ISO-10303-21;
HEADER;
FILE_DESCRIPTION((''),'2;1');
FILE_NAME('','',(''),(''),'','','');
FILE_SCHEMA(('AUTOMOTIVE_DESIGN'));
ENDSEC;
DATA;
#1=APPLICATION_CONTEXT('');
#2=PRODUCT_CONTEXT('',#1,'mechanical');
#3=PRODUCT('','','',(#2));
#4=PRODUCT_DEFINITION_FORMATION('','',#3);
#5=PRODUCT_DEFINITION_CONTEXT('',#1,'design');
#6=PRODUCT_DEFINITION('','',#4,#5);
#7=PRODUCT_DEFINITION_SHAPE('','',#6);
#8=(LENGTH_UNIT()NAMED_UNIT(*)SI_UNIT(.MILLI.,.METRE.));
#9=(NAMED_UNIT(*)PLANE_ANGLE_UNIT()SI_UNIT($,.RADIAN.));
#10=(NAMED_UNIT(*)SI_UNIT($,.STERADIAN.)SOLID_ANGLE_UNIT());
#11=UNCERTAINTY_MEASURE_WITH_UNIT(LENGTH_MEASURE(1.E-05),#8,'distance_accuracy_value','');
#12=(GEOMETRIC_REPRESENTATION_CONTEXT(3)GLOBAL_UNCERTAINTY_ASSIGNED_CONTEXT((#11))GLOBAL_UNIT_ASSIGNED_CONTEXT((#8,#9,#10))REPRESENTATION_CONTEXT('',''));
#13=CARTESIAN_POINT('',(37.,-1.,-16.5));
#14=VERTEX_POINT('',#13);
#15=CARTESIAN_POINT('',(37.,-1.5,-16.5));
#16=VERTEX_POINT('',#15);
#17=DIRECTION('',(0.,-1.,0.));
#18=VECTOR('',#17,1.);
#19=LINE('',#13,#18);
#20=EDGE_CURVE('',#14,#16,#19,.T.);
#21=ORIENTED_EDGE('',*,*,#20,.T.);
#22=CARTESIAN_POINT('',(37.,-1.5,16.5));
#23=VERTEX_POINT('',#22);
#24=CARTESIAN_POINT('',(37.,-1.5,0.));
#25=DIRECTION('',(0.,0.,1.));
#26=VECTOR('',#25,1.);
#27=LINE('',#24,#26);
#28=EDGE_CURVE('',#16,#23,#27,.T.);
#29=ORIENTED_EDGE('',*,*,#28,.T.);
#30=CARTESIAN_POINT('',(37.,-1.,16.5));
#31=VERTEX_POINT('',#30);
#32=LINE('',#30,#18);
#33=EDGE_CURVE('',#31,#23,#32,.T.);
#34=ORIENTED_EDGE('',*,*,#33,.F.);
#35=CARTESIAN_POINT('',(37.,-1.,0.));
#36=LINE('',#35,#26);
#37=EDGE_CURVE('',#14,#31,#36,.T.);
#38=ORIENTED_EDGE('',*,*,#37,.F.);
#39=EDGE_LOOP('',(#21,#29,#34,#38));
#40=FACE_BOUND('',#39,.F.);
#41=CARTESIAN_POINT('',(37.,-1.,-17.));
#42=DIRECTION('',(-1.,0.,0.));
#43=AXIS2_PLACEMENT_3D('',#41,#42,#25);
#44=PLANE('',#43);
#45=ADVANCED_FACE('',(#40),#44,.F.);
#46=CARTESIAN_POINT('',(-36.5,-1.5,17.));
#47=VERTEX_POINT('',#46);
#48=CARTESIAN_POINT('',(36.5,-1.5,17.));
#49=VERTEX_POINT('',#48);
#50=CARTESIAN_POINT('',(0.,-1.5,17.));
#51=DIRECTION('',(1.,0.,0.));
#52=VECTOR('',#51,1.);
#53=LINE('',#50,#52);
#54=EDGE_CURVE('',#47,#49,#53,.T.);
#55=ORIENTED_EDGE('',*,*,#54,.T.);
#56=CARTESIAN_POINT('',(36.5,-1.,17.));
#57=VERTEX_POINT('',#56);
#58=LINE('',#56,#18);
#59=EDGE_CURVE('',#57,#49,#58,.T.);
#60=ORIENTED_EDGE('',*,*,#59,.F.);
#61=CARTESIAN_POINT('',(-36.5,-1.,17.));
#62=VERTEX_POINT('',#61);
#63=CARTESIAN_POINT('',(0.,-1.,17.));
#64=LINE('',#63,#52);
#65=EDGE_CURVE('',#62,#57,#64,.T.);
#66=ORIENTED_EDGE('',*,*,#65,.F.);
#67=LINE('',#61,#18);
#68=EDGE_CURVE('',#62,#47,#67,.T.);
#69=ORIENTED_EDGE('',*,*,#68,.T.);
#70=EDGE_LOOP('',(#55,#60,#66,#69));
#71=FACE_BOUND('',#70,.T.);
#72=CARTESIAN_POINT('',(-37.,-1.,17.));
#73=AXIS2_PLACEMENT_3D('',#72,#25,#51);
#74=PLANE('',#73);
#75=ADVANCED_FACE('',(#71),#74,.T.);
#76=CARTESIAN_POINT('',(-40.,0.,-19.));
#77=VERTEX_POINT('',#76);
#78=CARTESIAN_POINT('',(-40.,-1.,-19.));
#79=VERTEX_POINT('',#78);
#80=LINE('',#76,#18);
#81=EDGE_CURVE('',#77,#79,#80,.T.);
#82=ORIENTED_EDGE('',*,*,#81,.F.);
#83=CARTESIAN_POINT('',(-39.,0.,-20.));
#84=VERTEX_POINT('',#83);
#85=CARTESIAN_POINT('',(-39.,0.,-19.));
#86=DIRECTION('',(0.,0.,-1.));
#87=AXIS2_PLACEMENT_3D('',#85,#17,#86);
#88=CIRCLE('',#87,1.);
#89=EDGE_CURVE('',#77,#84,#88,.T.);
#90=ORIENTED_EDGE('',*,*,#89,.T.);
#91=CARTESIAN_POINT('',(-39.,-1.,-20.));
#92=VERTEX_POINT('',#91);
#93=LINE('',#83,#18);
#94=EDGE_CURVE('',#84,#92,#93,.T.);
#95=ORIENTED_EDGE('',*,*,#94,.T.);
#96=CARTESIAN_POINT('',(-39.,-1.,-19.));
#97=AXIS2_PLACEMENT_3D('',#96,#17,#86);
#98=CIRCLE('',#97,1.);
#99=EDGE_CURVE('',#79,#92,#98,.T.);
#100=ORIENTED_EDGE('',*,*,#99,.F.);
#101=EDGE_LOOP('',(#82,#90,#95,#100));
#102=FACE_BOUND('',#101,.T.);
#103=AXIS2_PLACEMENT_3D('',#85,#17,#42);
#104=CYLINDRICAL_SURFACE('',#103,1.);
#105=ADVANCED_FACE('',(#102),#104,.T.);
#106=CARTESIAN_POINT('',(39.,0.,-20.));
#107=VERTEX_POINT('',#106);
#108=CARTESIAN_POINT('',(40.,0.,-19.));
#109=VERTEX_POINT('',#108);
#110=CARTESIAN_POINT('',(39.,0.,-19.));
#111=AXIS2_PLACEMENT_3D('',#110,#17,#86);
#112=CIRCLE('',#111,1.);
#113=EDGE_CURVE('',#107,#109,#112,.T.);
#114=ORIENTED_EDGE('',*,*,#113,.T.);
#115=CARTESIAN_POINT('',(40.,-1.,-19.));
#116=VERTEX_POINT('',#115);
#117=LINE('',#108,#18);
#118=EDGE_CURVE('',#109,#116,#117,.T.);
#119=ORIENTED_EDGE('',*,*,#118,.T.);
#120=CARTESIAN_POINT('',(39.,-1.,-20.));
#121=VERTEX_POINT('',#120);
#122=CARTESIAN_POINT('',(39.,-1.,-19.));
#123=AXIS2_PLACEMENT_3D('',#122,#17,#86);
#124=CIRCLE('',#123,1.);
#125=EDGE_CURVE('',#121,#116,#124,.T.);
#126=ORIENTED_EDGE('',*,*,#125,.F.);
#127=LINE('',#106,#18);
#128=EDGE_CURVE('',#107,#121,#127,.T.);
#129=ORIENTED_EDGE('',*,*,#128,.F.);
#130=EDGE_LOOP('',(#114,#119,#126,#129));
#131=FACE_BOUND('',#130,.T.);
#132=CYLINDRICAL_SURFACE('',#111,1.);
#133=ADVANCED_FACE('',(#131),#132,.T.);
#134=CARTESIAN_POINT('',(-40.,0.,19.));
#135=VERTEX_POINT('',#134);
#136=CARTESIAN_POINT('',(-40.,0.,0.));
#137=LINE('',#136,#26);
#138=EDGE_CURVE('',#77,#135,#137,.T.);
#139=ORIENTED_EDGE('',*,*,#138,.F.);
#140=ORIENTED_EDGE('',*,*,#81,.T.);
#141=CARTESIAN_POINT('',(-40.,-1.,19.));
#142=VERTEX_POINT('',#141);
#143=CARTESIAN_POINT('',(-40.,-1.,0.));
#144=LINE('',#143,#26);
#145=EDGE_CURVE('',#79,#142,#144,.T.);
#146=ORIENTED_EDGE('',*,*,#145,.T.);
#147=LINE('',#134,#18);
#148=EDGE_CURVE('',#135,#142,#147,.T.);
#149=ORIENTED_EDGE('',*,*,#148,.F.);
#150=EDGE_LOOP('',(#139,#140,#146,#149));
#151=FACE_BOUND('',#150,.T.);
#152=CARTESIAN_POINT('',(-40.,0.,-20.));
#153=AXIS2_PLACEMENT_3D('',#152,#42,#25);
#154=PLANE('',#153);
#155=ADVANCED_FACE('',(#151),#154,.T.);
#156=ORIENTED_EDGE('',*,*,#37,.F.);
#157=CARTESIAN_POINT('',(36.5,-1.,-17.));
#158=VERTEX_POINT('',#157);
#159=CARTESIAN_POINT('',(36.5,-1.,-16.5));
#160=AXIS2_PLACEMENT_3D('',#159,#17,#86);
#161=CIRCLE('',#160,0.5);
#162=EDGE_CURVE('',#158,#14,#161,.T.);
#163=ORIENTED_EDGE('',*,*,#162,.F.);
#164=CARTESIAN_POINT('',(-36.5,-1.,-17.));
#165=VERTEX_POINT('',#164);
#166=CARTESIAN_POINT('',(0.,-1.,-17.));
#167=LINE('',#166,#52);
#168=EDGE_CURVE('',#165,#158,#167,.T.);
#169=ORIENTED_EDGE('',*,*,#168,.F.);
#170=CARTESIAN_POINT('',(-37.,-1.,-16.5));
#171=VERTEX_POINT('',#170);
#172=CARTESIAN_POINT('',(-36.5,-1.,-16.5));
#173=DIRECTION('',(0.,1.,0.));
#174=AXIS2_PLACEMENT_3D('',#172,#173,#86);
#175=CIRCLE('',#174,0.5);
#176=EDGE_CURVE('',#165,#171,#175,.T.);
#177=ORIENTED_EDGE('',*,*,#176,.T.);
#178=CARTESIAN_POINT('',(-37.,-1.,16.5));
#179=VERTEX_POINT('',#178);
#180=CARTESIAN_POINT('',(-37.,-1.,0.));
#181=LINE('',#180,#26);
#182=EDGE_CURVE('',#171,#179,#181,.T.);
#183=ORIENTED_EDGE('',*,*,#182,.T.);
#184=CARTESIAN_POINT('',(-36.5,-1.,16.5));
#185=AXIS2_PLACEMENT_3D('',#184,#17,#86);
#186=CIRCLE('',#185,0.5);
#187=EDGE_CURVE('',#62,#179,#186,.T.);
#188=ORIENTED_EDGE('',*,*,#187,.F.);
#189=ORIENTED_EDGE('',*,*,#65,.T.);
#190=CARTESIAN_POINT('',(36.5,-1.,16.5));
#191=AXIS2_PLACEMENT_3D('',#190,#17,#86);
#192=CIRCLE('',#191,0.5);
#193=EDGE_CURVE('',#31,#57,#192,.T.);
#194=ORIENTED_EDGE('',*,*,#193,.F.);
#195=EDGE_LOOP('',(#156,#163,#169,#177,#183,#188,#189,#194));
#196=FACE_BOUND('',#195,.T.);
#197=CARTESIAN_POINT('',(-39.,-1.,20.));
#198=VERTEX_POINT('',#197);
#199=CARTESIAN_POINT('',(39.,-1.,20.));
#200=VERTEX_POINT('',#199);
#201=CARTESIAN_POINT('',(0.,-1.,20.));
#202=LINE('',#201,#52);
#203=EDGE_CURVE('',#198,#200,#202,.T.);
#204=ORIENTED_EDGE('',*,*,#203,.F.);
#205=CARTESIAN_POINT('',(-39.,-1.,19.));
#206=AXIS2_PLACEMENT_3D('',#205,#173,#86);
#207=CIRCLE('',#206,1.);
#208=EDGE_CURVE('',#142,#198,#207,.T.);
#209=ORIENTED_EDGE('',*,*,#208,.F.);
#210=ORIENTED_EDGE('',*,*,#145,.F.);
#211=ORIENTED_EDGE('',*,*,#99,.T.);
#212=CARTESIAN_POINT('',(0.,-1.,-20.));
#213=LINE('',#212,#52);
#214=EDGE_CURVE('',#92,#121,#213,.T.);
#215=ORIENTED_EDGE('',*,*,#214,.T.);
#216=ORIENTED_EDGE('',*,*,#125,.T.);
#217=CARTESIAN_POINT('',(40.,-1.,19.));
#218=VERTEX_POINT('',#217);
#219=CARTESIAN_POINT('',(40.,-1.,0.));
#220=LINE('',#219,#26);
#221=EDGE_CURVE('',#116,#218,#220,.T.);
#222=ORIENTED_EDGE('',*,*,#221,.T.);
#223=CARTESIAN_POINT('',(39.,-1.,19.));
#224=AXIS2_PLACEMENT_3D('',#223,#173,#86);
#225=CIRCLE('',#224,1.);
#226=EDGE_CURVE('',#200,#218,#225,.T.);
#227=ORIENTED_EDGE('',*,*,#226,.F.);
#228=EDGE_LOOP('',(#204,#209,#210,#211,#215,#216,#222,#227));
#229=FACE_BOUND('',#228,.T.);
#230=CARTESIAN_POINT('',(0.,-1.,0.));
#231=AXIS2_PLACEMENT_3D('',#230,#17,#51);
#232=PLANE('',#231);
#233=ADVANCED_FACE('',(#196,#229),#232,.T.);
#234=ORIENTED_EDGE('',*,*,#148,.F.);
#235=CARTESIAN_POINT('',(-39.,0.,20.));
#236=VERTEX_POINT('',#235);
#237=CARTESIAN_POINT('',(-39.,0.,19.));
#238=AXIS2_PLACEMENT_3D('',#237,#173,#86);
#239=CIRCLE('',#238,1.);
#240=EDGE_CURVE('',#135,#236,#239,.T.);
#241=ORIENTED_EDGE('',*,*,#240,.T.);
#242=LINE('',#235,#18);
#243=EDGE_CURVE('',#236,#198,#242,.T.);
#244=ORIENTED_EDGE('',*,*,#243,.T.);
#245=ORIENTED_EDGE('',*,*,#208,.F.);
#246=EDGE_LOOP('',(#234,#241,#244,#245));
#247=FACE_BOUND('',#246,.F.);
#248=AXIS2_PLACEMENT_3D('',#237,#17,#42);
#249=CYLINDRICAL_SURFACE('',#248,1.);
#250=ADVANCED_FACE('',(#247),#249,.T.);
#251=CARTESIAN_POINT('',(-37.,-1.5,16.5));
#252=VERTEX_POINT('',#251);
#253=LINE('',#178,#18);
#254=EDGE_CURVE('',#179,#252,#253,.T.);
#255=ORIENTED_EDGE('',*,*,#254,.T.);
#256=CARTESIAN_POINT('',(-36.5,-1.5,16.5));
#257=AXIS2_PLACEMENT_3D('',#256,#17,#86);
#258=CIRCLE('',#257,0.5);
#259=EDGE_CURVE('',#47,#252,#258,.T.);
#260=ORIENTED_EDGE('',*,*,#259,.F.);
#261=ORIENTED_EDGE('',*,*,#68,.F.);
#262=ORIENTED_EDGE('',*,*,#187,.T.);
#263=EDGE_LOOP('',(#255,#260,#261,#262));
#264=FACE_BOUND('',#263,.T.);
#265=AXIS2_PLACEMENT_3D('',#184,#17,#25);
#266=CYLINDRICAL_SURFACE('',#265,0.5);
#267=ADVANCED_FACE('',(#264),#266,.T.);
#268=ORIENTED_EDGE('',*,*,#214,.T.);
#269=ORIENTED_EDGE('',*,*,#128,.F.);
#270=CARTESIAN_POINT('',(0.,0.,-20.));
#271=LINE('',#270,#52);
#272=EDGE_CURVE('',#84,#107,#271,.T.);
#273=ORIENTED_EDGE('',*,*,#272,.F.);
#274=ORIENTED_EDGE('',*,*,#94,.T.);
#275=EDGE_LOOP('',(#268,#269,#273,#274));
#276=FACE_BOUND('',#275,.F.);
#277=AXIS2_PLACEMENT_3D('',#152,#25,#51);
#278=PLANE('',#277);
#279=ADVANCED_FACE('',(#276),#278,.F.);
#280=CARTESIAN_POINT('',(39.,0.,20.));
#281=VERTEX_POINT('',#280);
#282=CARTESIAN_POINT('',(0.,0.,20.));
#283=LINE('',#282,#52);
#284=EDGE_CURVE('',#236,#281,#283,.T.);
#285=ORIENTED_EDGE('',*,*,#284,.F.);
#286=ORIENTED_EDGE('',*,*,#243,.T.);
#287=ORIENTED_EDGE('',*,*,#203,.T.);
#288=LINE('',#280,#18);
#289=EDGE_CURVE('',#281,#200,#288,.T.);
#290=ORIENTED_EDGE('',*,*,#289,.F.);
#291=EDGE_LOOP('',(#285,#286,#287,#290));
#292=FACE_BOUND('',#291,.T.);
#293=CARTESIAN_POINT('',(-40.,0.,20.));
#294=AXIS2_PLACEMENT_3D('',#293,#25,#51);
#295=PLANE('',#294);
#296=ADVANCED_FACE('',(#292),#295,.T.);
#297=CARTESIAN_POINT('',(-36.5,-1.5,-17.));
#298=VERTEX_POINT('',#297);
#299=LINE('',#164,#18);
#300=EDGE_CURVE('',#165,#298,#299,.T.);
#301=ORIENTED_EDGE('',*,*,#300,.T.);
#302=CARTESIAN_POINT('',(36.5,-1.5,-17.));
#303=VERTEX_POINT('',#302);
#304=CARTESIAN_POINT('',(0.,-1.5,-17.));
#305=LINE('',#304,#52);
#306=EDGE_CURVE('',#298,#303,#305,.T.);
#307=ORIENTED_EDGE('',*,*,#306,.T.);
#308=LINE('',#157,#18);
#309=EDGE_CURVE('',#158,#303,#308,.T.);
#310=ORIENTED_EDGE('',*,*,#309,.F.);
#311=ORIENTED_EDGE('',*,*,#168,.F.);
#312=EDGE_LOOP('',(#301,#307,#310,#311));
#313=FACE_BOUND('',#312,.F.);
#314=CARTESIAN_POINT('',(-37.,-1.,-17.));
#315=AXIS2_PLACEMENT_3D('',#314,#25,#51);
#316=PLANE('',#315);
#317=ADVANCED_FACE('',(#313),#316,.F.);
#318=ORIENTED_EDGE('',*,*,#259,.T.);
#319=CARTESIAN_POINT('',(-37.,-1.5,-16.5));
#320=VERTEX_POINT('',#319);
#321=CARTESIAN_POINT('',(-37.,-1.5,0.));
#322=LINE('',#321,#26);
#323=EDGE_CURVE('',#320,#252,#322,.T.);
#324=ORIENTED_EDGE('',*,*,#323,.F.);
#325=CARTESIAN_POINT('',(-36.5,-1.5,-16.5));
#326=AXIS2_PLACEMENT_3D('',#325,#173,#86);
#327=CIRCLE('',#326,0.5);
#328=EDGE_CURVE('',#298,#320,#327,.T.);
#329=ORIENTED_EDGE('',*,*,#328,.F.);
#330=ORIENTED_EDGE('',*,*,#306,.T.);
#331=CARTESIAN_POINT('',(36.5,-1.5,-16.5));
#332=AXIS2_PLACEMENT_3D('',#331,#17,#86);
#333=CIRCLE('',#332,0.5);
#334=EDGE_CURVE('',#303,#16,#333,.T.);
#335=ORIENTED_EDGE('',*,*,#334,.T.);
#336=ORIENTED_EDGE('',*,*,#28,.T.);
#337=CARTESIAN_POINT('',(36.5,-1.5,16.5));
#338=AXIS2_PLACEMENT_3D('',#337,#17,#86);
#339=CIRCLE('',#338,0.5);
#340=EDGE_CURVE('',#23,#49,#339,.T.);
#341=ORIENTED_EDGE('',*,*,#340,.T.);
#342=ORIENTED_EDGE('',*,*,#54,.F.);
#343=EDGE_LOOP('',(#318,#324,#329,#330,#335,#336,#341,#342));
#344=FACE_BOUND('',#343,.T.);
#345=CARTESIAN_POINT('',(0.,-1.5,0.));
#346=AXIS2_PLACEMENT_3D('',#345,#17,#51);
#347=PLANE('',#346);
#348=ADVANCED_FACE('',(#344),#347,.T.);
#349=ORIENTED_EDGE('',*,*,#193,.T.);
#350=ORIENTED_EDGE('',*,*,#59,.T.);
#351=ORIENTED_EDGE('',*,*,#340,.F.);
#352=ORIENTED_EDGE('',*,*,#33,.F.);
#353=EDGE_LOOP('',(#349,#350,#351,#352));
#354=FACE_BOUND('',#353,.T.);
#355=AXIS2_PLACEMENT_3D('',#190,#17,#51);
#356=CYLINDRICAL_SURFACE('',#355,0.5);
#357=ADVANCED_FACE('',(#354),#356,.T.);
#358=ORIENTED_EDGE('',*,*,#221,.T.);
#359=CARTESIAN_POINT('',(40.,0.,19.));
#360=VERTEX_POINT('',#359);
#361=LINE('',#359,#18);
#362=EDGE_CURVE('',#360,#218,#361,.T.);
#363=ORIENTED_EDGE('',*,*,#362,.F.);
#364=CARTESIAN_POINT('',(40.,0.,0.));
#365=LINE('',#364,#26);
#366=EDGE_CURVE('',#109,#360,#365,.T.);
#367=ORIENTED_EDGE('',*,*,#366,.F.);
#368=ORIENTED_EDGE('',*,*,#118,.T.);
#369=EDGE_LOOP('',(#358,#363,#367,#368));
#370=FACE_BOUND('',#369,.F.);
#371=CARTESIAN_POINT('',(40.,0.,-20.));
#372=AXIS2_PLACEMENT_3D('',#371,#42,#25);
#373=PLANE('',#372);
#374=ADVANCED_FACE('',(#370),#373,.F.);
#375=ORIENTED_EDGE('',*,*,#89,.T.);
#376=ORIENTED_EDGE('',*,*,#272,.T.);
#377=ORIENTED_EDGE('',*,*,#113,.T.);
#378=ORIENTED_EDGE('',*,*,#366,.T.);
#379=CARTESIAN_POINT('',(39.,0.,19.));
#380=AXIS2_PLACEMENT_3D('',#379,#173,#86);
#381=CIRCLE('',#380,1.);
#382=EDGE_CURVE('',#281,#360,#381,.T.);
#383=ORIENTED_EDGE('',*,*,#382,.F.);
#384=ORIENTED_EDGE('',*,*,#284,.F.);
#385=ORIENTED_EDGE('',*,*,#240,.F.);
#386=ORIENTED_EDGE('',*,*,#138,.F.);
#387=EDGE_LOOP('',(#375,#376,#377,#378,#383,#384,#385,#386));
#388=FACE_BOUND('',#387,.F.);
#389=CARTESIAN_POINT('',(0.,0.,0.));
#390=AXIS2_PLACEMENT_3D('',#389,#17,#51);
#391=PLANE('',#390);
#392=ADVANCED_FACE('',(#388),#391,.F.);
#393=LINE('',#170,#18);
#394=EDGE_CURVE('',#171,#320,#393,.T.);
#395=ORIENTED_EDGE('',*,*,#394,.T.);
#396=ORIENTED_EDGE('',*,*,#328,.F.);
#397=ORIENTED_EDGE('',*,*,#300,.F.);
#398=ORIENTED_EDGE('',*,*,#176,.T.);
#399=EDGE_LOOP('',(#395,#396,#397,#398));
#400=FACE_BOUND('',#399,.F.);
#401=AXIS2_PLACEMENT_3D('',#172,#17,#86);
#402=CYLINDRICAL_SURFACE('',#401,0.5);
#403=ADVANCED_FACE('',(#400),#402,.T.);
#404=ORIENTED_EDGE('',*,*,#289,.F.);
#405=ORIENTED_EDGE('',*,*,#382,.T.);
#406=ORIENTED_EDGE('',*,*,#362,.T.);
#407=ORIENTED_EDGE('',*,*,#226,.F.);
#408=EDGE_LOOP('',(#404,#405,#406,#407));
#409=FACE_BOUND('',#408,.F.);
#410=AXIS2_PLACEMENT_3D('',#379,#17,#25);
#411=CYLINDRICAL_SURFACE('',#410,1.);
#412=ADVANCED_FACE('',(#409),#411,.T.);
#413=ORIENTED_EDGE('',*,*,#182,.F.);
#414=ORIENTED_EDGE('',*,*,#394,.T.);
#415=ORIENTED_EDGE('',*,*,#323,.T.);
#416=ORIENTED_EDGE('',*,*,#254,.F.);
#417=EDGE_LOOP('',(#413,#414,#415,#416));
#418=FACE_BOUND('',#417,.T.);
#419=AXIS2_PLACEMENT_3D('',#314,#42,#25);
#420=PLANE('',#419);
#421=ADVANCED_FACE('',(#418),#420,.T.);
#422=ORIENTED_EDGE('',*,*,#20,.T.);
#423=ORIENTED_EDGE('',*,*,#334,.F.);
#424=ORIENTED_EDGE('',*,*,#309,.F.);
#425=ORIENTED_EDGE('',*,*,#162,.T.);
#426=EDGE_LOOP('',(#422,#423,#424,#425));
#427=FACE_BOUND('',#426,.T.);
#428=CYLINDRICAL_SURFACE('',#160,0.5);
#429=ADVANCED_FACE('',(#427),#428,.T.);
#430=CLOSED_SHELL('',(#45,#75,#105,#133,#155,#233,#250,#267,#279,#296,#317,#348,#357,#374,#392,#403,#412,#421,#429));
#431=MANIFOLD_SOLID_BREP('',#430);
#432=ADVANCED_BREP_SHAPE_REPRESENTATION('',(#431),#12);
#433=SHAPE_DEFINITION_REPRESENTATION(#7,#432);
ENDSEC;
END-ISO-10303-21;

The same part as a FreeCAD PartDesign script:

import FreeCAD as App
import Part
import Sketcher
from FreeCAD import Vector


def edges_at(feature, points):
    """Names of the edges that pass closest to the given points."""
    edges = feature.Shape.Edges
    near = lambda p: min(range(len(edges)), key=lambda i: edges[i].distToShape(Part.Vertex(*p))[0])
    return sorted({f"Edge{near(p) + 1}" for p in points})

doc = App.newDocument("Part")
params = doc.addObject("Spreadsheet::Sheet", "Params")
for row, (alias, value) in enumerate([
    ("sketch1_width", "80 mm"),
    ("sketch1_height", "40 mm"),
    ("pad1_length", "1 mm"),
    ("sketch2_width", "74 mm"),
    ("sketch2_height", "34 mm"),
    ("pad2_length", "0.5 mm"),
    ("fillet_radius", "1 mm"),
    ("fillet2_radius", "0.5 mm"),
], start=1):
    params.set(f"A{row}", alias)
    params.set(f"B{row}", "=" + value)
    params.setAlias(f"B{row}", alias)

body = doc.addObject("PartDesign::Body", "Body")

# Sketch on XZ plane
sketch1 = body.newObject("Sketcher::SketchObject", "Sketch")
sketch1.AttachmentSupport = (doc.getObject("XZ_Plane"), [""])
sketch1.MapMode = "FlatFace"
sketch1.addGeometry([
    Part.LineSegment(Vector(-40, 20, 0), Vector(-40, -20, 0)),
    Part.LineSegment(Vector(-40, -20, 0), Vector(40, -20, 0)),
    Part.LineSegment(Vector(40, -20, 0), Vector(40, 20, 0)),
    Part.LineSegment(Vector(40, 20, 0), Vector(-40, 20, 0)),
], False)
sketch1.addConstraint([
    Sketcher.Constraint("Coincident", 0, 2, 1, 1),
    Sketcher.Constraint("Coincident", 1, 2, 2, 1),
    Sketcher.Constraint("Coincident", 2, 2, 3, 1),
    Sketcher.Constraint("Coincident", 3, 2, 0, 1),
    Sketcher.Constraint("Vertical", 0),
    Sketcher.Constraint("Horizontal", 1),
    Sketcher.Constraint("Vertical", 2),
    Sketcher.Constraint("Horizontal", 3),
    Sketcher.Constraint("Symmetric", 0, 2, 2, 2, -1, 1),
    Sketcher.Constraint("DistanceX", 1, 1, 1, 2, 80.0),
    Sketcher.Constraint("DistanceY", 0, 2, 0, 1, 40.0),
])
sketch1.setExpression("Constraints[9]", "Params.sketch1_width")
sketch1.setExpression("Constraints[10]", "Params.sketch1_height")
pad1 = body.newObject("PartDesign::Pad", "Pad")
pad1.Profile = sketch1
pad1.setExpression("Length", "Params.pad1_length")

# Sketch on XZ plane
sketch2 = body.newObject("Sketcher::SketchObject", "Sketch001")
sketch2.AttachmentSupport = (doc.getObject("XZ_Plane"), [""])
sketch2.MapMode = "FlatFace"
sketch2.AttachmentOffset = App.Placement(Vector(0, 0, 1), App.Rotation())
sketch2.addGeometry([
    Part.LineSegment(Vector(-37, 17, 0), Vector(-37, -17, 0)),
    Part.LineSegment(Vector(-37, -17, 0), Vector(37, -17, 0)),
    Part.LineSegment(Vector(37, -17, 0), Vector(37, 17, 0)),
    Part.LineSegment(Vector(37, 17, 0), Vector(-37, 17, 0)),
], False)
sketch2.addConstraint([
    Sketcher.Constraint("Coincident", 0, 2, 1, 1),
    Sketcher.Constraint("Coincident", 1, 2, 2, 1),
    Sketcher.Constraint("Coincident", 2, 2, 3, 1),
    Sketcher.Constraint("Coincident", 3, 2, 0, 1),
    Sketcher.Constraint("Vertical", 0),
    Sketcher.Constraint("Horizontal", 1),
    Sketcher.Constraint("Vertical", 2),
    Sketcher.Constraint("Horizontal", 3),
    Sketcher.Constraint("Symmetric", 0, 2, 2, 2, -1, 1),
    Sketcher.Constraint("DistanceX", 1, 1, 1, 2, 74.0),
    Sketcher.Constraint("DistanceY", 0, 2, 0, 1, 34.0),
])
sketch2.setExpression("Constraints[9]", "Params.sketch2_width")
sketch2.setExpression("Constraints[10]", "Params.sketch2_height")
pad2 = body.newObject("PartDesign::Pad", "Pad001")
pad2.Profile = sketch2
pad2.setExpression("Length", "Params.pad2_length")
doc.recompute()

fillet = body.newObject("PartDesign::Fillet", "Fillet")
fillet.Base = (pad2, edges_at(pad2, [
    (40, -0.5, 20),
    (40, -0.5, -20),
    (-40, -0.5, -20),
    (-40, -0.5, 20),
]))
fillet.setExpression("Radius", "Params.fillet_radius")
doc.recompute()

fillet2 = body.newObject("PartDesign::Fillet", "Fillet001")
fillet2.Base = (fillet, edges_at(fillet, [
    (-37, -1.25, 17),
    (-37, -1.25, -17),
    (37, -1.25, -17),
    (37, -1.25, 17),
]))
fillet2.setExpression("Radius", "Params.fillet2_radius")

doc.recompute()
